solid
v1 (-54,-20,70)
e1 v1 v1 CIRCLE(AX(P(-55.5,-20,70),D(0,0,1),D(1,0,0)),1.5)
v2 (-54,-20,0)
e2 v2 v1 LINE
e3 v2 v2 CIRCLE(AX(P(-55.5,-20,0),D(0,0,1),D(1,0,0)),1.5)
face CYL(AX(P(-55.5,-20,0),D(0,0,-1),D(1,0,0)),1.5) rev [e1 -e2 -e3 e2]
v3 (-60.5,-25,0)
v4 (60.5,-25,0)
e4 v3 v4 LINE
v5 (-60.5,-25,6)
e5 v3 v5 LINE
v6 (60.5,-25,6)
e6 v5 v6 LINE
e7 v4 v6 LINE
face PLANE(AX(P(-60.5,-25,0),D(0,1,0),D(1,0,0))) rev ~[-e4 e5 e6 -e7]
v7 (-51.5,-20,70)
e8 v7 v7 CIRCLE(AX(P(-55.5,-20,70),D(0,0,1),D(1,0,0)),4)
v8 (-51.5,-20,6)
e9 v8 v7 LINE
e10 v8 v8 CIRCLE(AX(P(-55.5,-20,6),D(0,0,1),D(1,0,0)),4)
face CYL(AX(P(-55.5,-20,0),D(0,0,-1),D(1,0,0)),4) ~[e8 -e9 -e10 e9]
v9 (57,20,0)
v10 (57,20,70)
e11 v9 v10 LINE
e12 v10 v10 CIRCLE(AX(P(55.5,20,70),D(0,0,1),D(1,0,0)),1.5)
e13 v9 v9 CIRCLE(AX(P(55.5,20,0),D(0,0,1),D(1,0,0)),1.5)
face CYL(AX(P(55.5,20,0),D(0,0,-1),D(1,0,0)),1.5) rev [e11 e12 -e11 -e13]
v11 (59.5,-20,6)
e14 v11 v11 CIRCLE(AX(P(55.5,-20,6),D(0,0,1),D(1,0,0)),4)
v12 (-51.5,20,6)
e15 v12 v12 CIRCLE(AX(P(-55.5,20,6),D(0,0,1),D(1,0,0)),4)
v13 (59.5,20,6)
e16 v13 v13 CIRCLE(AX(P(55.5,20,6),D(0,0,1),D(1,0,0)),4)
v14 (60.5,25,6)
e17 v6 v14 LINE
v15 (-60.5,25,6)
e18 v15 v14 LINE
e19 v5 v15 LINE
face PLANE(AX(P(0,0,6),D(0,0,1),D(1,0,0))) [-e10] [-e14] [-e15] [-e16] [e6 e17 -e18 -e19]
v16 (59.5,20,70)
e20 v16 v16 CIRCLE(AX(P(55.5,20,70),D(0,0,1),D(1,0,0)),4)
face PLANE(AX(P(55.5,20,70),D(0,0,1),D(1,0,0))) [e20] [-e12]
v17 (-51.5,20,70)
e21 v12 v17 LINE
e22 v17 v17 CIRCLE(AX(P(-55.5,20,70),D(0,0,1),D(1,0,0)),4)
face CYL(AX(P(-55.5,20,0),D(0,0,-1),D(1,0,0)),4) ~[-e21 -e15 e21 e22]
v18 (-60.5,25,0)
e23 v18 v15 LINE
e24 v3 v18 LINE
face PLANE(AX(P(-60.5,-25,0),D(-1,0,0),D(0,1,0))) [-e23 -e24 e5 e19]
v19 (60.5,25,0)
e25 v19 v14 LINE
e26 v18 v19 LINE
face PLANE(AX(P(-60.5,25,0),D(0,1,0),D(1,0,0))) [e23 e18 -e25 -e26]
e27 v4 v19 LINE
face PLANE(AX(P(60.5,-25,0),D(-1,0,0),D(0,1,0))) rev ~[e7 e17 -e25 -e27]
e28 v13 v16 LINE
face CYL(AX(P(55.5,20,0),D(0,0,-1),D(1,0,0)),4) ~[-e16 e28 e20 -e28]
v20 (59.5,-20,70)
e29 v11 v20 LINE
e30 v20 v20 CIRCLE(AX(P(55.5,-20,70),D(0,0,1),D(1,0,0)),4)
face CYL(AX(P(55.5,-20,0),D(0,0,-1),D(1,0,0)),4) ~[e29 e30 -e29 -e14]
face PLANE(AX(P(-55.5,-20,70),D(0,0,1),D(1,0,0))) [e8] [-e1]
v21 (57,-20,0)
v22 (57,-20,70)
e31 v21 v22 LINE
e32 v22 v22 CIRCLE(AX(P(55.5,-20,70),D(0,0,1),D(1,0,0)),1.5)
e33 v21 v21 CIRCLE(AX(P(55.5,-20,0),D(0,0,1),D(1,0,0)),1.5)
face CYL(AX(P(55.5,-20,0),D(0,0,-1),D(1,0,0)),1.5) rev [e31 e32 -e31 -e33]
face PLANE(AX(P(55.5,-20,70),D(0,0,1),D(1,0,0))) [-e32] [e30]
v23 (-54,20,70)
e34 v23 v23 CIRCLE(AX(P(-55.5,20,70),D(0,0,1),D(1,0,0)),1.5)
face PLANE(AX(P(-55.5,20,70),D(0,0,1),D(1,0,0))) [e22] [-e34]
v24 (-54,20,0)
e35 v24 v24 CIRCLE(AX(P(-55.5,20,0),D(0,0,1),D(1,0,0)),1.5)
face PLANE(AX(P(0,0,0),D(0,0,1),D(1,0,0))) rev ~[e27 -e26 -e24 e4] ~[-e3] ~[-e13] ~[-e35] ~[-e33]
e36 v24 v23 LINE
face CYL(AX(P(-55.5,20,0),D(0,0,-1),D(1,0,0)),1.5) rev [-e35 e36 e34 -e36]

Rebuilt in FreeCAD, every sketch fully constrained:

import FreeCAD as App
import Part
import Sketcher
from FreeCAD import Vector


def add_polygon(sketch, points):
    """Adds a closed chain of lines whose ends are joined by coincident constraints."""
    first, n = sketch.GeometryCount, len(points)
    for a, b in zip(points, points[1:] + points[:1]):
        sketch.addGeometry(Part.LineSegment(App.Vector(*a, 0), App.Vector(*b, 0)), False)
    for i in range(n):
        sketch.addConstraint(Sketcher.Constraint("Coincident", first + i, 2, first + (i + 1) % n, 1))

doc = App.newDocument("Part")
params = doc.addObject("Spreadsheet::Sheet", "Params")
for row, (alias, value) in enumerate([
    ("sketch1_diameter", "8 mm"),
    ("sketch1_width", "121 mm"),
    ("sketch1_height", "50 mm"),
    ("pad1_length", "6 mm"),
    ("sketch2_diameter", "8 mm"),
    ("sketch2_diameter2", "3 mm"),
    ("pad2_length", "70 mm"),
], start=1):
    params.set(f"A{row}", alias)
    params.set(f"B{row}", "=" + value)
    params.setAlias(f"B{row}", alias)

body = doc.addObject("PartDesign::Body", "Body")

sketch1 = body.newObject("Sketcher::SketchObject", "Sketch")
sketch1.AttachmentSupport = (doc.getObject("XY_Plane"), [""])
sketch1.MapMode = "FlatFace"
add_polygon(sketch1, [(-60.5, 25), (-60.5, -25), (60.5, -25), (60.5, 25)])
sketch1.addGeometry(Part.Circle(Vector(-55.5, -20, 0), Vector(0, 0, 1), 4), False)
sketch1.addGeometry(Part.Circle(Vector(55.5, -20, 0), Vector(0, 0, 1), 4), False)
sketch1.addGeometry(Part.Circle(Vector(-55.5, 20, 0), Vector(0, 0, 1), 4), False)
sketch1.addGeometry(Part.Circle(Vector(55.5, 20, 0), Vector(0, 0, 1), 4), False)
sketch1.addConstraint([
    Sketcher.Constraint("Vertical", 0),
    Sketcher.Constraint("Horizontal", 1),
    Sketcher.Constraint("Vertical", 2),
    Sketcher.Constraint("Horizontal", 3),
    Sketcher.Constraint("Equal", 4, 5),
    Sketcher.Constraint("Equal", 5, 6),
    Sketcher.Constraint("Equal", 6, 7),
    Sketcher.Constraint("Symmetric", 5, 3, 6, 3, -1, 1),
    Sketcher.Constraint("Symmetric", 4, 3, 7, 3, -1, 1),
    Sketcher.Constraint("Symmetric", 0, 2, 2, 2, -1, 1),
    Sketcher.Constraint("Symmetric", 4, 3, 5, 3, -2),
    Sketcher.Constraint("Diameter", 4, 8.0),
    Sketcher.Constraint("DistanceX", 1, 1, 1, 2, 121.0),
    Sketcher.Constraint("DistanceY", 0, 2, 0, 1, 50.0),
    Sketcher.Constraint("DistanceY", 4, 3, -1, 1, 20.0),
    Sketcher.Constraint("DistanceX", 4, 3, 5, 3, 111.0),
])
sketch1.setExpression("Constraints[15]", "Params.sketch1_diameter")
sketch1.setExpression("Constraints[16]", "Params.sketch1_width")
sketch1.setExpression("Constraints[17]", "Params.sketch1_height")
pad1 = body.newObject("PartDesign::Pad", "Pad")
pad1.Profile = sketch1
pad1.setExpression("Length", "Params.pad1_length")

sketch2 = body.newObject("Sketcher::SketchObject", "Sketch001")
sketch2.AttachmentSupport = (doc.getObject("XY_Plane"), [""])
sketch2.MapMode = "FlatFace"
sketch2.addGeometry([
    Part.Circle(Vector(-55.5, 20, 0), Vector(0, 0, 1), 4),
    Part.Circle(Vector(-55.5, 20, 0), Vector(0, 0, 1), 1.5),
    Part.Circle(Vector(55.5, 20, 0), Vector(0, 0, 1), 4),
    Part.Circle(Vector(55.5, 20, 0), Vector(0, 0, 1), 1.5),
    Part.Circle(Vector(55.5, -20, 0), Vector(0, 0, 1), 4),
    Part.Circle(Vector(55.5, -20, 0), Vector(0, 0, 1), 1.5),
    Part.Circle(Vector(-55.5, -20, 0), Vector(0, 0, 1), 4),
    Part.Circle(Vector(-55.5, -20, 0), Vector(0, 0, 1), 1.5),
], False)
sketch2.addConstraint([
    Sketcher.Constraint("Coincident", 1, 3, 0, 3),
    Sketcher.Constraint("Coincident", 3, 3, 2, 3),
    Sketcher.Constraint("Coincident", 5, 3, 4, 3),
    Sketcher.Constraint("Coincident", 7, 3, 6, 3),
    Sketcher.Constraint("Equal", 0, 2),
    Sketcher.Constraint("Equal", 1, 3),
    Sketcher.Constraint("Equal", 2, 4),
    Sketcher.Constraint("Equal", 3, 5),
    Sketcher.Constraint("Equal", 4, 6),
    Sketcher.Constraint("Equal", 5, 7),
    Sketcher.Constraint("Symmetric", 0, 3, 4, 3, -1, 1),
    Sketcher.Constraint("Symmetric", 2, 3, 6, 3, -1, 1),
    Sketcher.Constraint("Symmetric", 0, 3, 2, 3, -2),
    Sketcher.Constraint("Diameter", 0, 8.0),
    Sketcher.Constraint("Diameter", 1, 3.0),
    Sketcher.Constraint("DistanceY", -1, 1, 0, 3, 20.0),
    Sketcher.Constraint("DistanceX", 0, 3, 2, 3, 111.0),
])
sketch2.setExpression("Constraints[13]", "Params.sketch2_diameter")
sketch2.setExpression("Constraints[14]", "Params.sketch2_diameter2")
pad2 = body.newObject("PartDesign::Pad", "Pad001")
pad2.Profile = sketch2
pad2.setExpression("Length", "Params.pad2_length")

doc.recompute()
